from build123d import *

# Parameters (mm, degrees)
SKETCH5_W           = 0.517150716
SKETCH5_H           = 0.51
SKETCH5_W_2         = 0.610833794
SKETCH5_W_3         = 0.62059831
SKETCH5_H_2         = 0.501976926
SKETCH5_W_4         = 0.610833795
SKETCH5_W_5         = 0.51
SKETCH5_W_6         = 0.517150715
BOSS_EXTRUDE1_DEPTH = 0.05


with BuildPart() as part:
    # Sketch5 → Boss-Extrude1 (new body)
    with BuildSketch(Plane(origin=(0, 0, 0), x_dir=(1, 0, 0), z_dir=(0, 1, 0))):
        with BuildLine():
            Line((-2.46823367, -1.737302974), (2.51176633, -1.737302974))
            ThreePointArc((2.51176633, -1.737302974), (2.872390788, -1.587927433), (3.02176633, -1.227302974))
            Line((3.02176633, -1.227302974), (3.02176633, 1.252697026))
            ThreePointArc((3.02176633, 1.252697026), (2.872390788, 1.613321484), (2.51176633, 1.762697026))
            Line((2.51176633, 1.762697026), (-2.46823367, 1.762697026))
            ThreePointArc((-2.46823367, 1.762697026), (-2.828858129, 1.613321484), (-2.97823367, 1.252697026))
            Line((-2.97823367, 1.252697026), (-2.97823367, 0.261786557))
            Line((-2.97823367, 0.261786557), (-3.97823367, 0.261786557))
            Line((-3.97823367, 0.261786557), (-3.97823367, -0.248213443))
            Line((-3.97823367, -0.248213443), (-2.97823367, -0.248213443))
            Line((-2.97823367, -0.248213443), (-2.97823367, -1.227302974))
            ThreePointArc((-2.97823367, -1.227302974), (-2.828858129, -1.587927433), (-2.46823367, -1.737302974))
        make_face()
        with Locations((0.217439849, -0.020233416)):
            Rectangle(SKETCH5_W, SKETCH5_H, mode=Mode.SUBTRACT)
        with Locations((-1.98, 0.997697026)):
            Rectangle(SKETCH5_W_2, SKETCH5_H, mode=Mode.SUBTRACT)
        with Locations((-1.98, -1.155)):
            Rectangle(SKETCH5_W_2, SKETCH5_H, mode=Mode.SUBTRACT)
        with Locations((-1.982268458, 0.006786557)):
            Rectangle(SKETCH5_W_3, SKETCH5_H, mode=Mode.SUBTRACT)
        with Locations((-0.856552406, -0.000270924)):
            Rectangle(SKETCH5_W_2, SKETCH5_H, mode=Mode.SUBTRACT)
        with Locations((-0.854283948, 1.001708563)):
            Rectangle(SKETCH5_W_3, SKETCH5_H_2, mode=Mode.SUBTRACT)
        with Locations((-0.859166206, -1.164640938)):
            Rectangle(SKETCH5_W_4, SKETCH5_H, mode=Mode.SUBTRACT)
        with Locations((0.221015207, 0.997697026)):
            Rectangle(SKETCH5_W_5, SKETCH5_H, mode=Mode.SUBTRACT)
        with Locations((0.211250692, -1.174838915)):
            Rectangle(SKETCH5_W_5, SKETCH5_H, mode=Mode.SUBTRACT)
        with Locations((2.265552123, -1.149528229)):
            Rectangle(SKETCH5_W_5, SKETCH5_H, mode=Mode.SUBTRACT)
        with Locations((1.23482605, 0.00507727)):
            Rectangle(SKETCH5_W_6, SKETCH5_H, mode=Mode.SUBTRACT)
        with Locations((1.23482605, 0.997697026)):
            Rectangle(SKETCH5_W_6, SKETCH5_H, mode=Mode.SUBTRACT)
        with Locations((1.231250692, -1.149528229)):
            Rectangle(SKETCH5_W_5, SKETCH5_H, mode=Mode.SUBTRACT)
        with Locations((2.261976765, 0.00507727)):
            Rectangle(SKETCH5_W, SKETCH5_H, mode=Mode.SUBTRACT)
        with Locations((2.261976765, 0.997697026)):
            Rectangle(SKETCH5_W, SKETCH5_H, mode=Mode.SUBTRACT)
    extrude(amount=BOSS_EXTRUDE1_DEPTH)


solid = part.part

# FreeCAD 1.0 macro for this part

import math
import FreeCAD as App
import Part
import Sketcher
Q = App.Units.Quantity

doc = App.newDocument("Part")
body = doc.addObject("PartDesign::Body", "Body")

# Sketch on XZ plane
sketch1 = doc.addObject("Sketcher::SketchObject", "Sketch")
body.addObject(sketch1)
sketch1.AttachmentSupport = (doc.XZ_Plane, [""])
sketch1.MapMode = "FlatFace"
sketch1.addGeometry([
    Part.LineSegment(App.Vector(-2.5, 1.7, 0), App.Vector(2.5, 1.7, 0)),  # 0
    Part.ArcOfCircle(Part.Circle(App.Vector(2.5, 1.2, 0), App.Vector(0, 0, 1), 0.5), math.radians(0), math.radians(90)),  # 1
    Part.LineSegment(App.Vector(3, 1.2, 0), App.Vector(3, -1.3, 0)),  # 2
    Part.ArcOfCircle(Part.Circle(App.Vector(2.5, -1.3, 0), App.Vector(0, 0, 1), 0.5), math.radians(-90), math.radians(0)),  # 3
    Part.LineSegment(App.Vector(2.5, -1.8, 0), App.Vector(-2.5, -1.8, 0)),  # 4
    Part.ArcOfCircle(Part.Circle(App.Vector(-2.5, -1.3, 0), App.Vector(0, 0, 1), 0.5), math.radians(180), math.radians(270)),  # 5
    Part.LineSegment(App.Vector(-3, -1.3, 0), App.Vector(-3, -0.3, 0)),  # 6
    Part.LineSegment(App.Vector(-3, -0.3, 0), App.Vector(-4, -0.3, 0)),  # 7
    Part.LineSegment(App.Vector(-4, -0.3, 0), App.Vector(-4, 0.2, 0)),  # 8
    Part.LineSegment(App.Vector(-4, 0.2, 0), App.Vector(-3, 0.2, 0)),  # 9
    Part.LineSegment(App.Vector(-3, 0.2, 0), App.Vector(-3, 1.2, 0)),  # 10
    Part.ArcOfCircle(Part.Circle(App.Vector(-2.5, 1.2, 0), App.Vector(0, 0, 1), 0.5), math.radians(90), math.radians(180)),  # 11
    Part.LineSegment(App.Vector(-1.7, 1.4, 0), App.Vector(-2.3, 1.4, 0)),  # 12
    Part.LineSegment(App.Vector(-2.3, 1.4, 0), App.Vector(-2.3, 0.9, 0)),  # 13
    Part.LineSegment(App.Vector(-2.3, 0.9, 0), App.Vector(-1.7, 0.9, 0)),  # 14
    Part.LineSegment(App.Vector(-1.7, 0.9, 0), App.Vector(-1.7, 1.4, 0)),  # 15
    Part.LineSegment(App.Vector(-0.6, 1.4, 0), App.Vector(-1.2, 1.4, 0)),  # 16
    Part.LineSegment(App.Vector(-1.2, 1.4, 0), App.Vector(-1.2, 0.9, 0)),  # 17
    Part.LineSegment(App.Vector(-1.2, 0.9, 0), App.Vector(-0.6, 0.9, 0)),  # 18
    Part.LineSegment(App.Vector(-0.6, 0.9, 0), App.Vector(-0.6, 1.4, 0)),  # 19
    Part.LineSegment(App.Vector(0.5, 1.4, 0), App.Vector(0, 1.4, 0)),  # 20
    Part.LineSegment(App.Vector(0, 1.4, 0), App.Vector(0, 0.9, 0)),  # 21
    Part.LineSegment(App.Vector(0, 0.9, 0), App.Vector(0.5, 0.9, 0)),  # 22
    Part.LineSegment(App.Vector(0.5, 0.9, 0), App.Vector(0.5, 1.4, 0)),  # 23
    Part.LineSegment(App.Vector(1.5, 1.4, 0), App.Vector(1, 1.4, 0)),  # 24
    Part.LineSegment(App.Vector(1, 1.4, 0), App.Vector(1, 0.9, 0)),  # 25
    Part.LineSegment(App.Vector(1, 0.9, 0), App.Vector(1.5, 0.9, 0)),  # 26
    Part.LineSegment(App.Vector(1.5, 0.9, 0), App.Vector(1.5, 1.4, 0)),  # 27
    Part.LineSegment(App.Vector(2.5, 1.4, 0), App.Vector(2, 1.4, 0)),  # 28
    Part.LineSegment(App.Vector(2, 1.4, 0), App.Vector(2, 0.9, 0)),  # 29
    Part.LineSegment(App.Vector(2, 0.9, 0), App.Vector(2.5, 0.9, 0)),  # 30
    Part.LineSegment(App.Vector(2.5, 0.9, 0), App.Vector(2.5, 1.4, 0)),  # 31
    Part.LineSegment(App.Vector(-1.7, 0.2, 0), App.Vector(-2.3, 0.2, 0)),  # 32
    Part.LineSegment(App.Vector(-2.3, 0.2, 0), App.Vector(-2.3, -0.3, 0)),  # 33
    Part.LineSegment(App.Vector(-2.3, -0.3, 0), App.Vector(-1.7, -0.3, 0)),  # 34
    Part.LineSegment(App.Vector(-1.7, -0.3, 0), App.Vector(-1.7, 0.2, 0)),  # 35
    Part.LineSegment(App.Vector(-0.6, 0.3, 0), App.Vector(-1.2, 0.3, 0)),  # 36
    Part.LineSegment(App.Vector(-1.2, 0.3, 0), App.Vector(-1.2, -0.3, 0)),  # 37
    Part.LineSegment(App.Vector(-1.2, -0.3, 0), App.Vector(-0.6, -0.3, 0)),  # 38
    Part.LineSegment(App.Vector(-0.6, -0.3, 0), App.Vector(-0.6, 0.3, 0)),  # 39
    Part.LineSegment(App.Vector(-1.7, -0.7, 0), App.Vector(-2.3, -0.7, 0)),  # 40
    Part.LineSegment(App.Vector(-2.3, -0.7, 0), App.Vector(-2.3, -1.3, 0)),  # 41
    Part.LineSegment(App.Vector(-2.3, -1.3, 0), App.Vector(-1.7, -1.3, 0)),  # 42
    Part.LineSegment(App.Vector(-1.7, -1.3, 0), App.Vector(-1.7, -0.7, 0)),  # 43
    Part.LineSegment(App.Vector(-0.5, -0.8, 0), App.Vector(-1.2, -0.8, 0)),  # 44
    Part.LineSegment(App.Vector(-1.2, -0.8, 0), App.Vector(-1.2, -1.3, 0)),  # 45
    Part.LineSegment(App.Vector(-1.2, -1.3, 0), App.Vector(-0.5, -1.3, 0)),  # 46
    Part.LineSegment(App.Vector(-0.5, -1.3, 0), App.Vector(-0.5, -0.8, 0)),  # 47
    Part.LineSegment(App.Vector(0.5, 0.3, 0), App.Vector(0, 0.3, 0)),  # 48
    Part.LineSegment(App.Vector(0, 0.3, 0), App.Vector(0, -0.2, 0)),  # 49
    Part.LineSegment(App.Vector(0, -0.2, 0), App.Vector(0.5, -0.2, 0)),  # 50
    Part.LineSegment(App.Vector(0.5, -0.2, 0), App.Vector(0.5, 0.3, 0)),  # 51
    Part.LineSegment(App.Vector(1.5, 0.2, 0), App.Vector(1, 0.2, 0)),  # 52
    Part.LineSegment(App.Vector(1, 0.2, 0), App.Vector(1, -0.3, 0)),  # 53
    Part.LineSegment(App.Vector(1, -0.3, 0), App.Vector(1.5, -0.3, 0)),  # 54
    Part.LineSegment(App.Vector(1.5, -0.3, 0), App.Vector(1.5, 0.2, 0)),  # 55
    Part.LineSegment(App.Vector(2.5, 0.2, 0), App.Vector(2, 0.2, 0)),  # 56
    Part.LineSegment(App.Vector(2, 0.2, 0), App.Vector(2, -0.3, 0)),  # 57
    Part.LineSegment(App.Vector(2, -0.3, 0), App.Vector(2.5, -0.3, 0)),  # 58
    Part.LineSegment(App.Vector(2.5, -0.3, 0), App.Vector(2.5, 0.2, 0)),  # 59
    Part.LineSegment(App.Vector(0.5, -0.7, 0), App.Vector(0, -0.7, 0)),  # 60
    Part.LineSegment(App.Vector(0, -0.7, 0), App.Vector(0, -1.3, 0)),  # 61
    Part.LineSegment(App.Vector(0, -1.3, 0), App.Vector(0.5, -1.3, 0)),  # 62
    Part.LineSegment(App.Vector(0.5, -1.3, 0), App.Vector(0.5, -0.7, 0)),  # 63
    Part.LineSegment(App.Vector(1.5, -0.7, 0), App.Vector(1, -0.7, 0)),  # 64
    Part.LineSegment(App.Vector(1, -0.7, 0), App.Vector(1, -1.3, 0)),  # 65
    Part.LineSegment(App.Vector(1, -1.3, 0), App.Vector(1.5, -1.3, 0)),  # 66
    Part.LineSegment(App.Vector(1.5, -1.3, 0), App.Vector(1.5, -0.7, 0)),  # 67
    Part.LineSegment(App.Vector(2.5, -0.7, 0), App.Vector(2, -0.7, 0)),  # 68
    Part.LineSegment(App.Vector(2, -0.7, 0), App.Vector(2, -1.3, 0)),  # 69
    Part.LineSegment(App.Vector(2, -1.3, 0), App.Vector(2.5, -1.3, 0)),  # 70
    Part.LineSegment(App.Vector(2.5, -1.3, 0), App.Vector(2.5, -0.7, 0)),  # 71
], False)
sketch1.addConstraint([
    Sketcher.Constraint("Tangent", 0, 2, 1, 2),
    Sketcher.Constraint("Tangent", 1, 1, 2, 1),
    Sketcher.Constraint("Tangent", 2, 2, 3, 2),
    Sketcher.Constraint("Tangent", 3, 1, 4, 1),
    Sketcher.Constraint("Tangent", 4, 2, 5, 2),
    Sketcher.Constraint("Tangent", 5, 1, 6, 1),
    Sketcher.Constraint("Coincident", 6, 2, 7, 1),
    Sketcher.Constraint("Coincident", 7, 2, 8, 1),
    Sketcher.Constraint("Coincident", 8, 2, 9, 1),
    Sketcher.Constraint("Coincident", 9, 2, 10, 1),
    Sketcher.Constraint("Tangent", 10, 2, 11, 2),
    Sketcher.Constraint("Tangent", 11, 1, 0, 1),
    Sketcher.Constraint("Coincident", 12, 2, 13, 1),
    Sketcher.Constraint("Coincident", 13, 2, 14, 1),
    Sketcher.Constraint("Coincident", 14, 2, 15, 1),
    Sketcher.Constraint("Coincident", 15, 2, 12, 1),
    Sketcher.Constraint("Coincident", 16, 2, 17, 1),
    Sketcher.Constraint("Coincident", 17, 2, 18, 1),
    Sketcher.Constraint("Coincident", 18, 2, 19, 1),
    Sketcher.Constraint("Coincident", 19, 2, 16, 1),
    Sketcher.Constraint("Coincident", 20, 2, 21, 1),
    Sketcher.Constraint("Coincident", 21, 2, 22, 1),
    Sketcher.Constraint("Coincident", 22, 2, 23, 1),
    Sketcher.Constraint("Coincident", 23, 2, 20, 1),
    Sketcher.Constraint("Coincident", 24, 2, 25, 1),
    Sketcher.Constraint("Coincident", 25, 2, 26, 1),
    Sketcher.Constraint("Coincident", 26, 2, 27, 1),
    Sketcher.Constraint("Coincident", 27, 2, 24, 1),
    Sketcher.Constraint("Coincident", 28, 2, 29, 1),
    Sketcher.Constraint("Coincident", 29, 2, 30, 1),
    Sketcher.Constraint("Coincident", 30, 2, 31, 1),
    Sketcher.Constraint("Coincident", 31, 2, 28, 1),
    Sketcher.Constraint("Coincident", 32, 2, 33, 1),
    Sketcher.Constraint("Coincident", 33, 2, 34, 1),
    Sketcher.Constraint("Coincident", 34, 2, 35, 1),
    Sketcher.Constraint("Coincident", 35, 2, 32, 1),
    Sketcher.Constraint("Coincident", 36, 2, 37, 1),
    Sketcher.Constraint("Coincident", 37, 2, 38, 1),
    Sketcher.Constraint("Coincident", 38, 2, 39, 1),
    Sketcher.Constraint("Coincident", 39, 2, 36, 1),
    Sketcher.Constraint("Coincident", 40, 2, 41, 1),
    Sketcher.Constraint("Coincident", 41, 2, 42, 1),
    Sketcher.Constraint("Coincident", 42, 2, 43, 1),
    Sketcher.Constraint("Coincident", 43, 2, 40, 1),
    Sketcher.Constraint("Coincident", 44, 2, 45, 1),
    Sketcher.Constraint("Coincident", 45, 2, 46, 1),
    Sketcher.Constraint("Coincident", 46, 2, 47, 1),
    Sketcher.Constraint("Coincident", 47, 2, 44, 1),
    Sketcher.Constraint("Coincident", 48, 2, 49, 1),
    Sketcher.Constraint("Coincident", 49, 2, 50, 1),
    Sketcher.Constraint("Coincident", 50, 2, 51, 1),
    Sketcher.Constraint("Coincident", 51, 2, 48, 1),
    Sketcher.Constraint("Coincident", 52, 2, 53, 1),
    Sketcher.Constraint("Coincident", 53, 2, 54, 1),
    Sketcher.Constraint("Coincident", 54, 2, 55, 1),
    Sketcher.Constraint("Coincident", 55, 2, 52, 1),
    Sketcher.Constraint("Coincident", 56, 2, 57, 1),
    Sketcher.Constraint("Coincident", 57, 2, 58, 1),
    Sketcher.Constraint("Coincident", 58, 2, 59, 1),
    Sketcher.Constraint("Coincident", 59, 2, 56, 1),
    Sketcher.Constraint("Coincident", 60, 2, 61, 1),
    Sketcher.Constraint("Coincident", 61, 2, 62, 1),
    Sketcher.Constraint("Coincident", 62, 2, 63, 1),
    Sketcher.Constraint("Coincident", 63, 2, 60, 1),
    Sketcher.Constraint("Coincident", 64, 2, 65, 1),
    Sketcher.Constraint("Coincident", 65, 2, 66, 1),
    Sketcher.Constraint("Coincident", 66, 2, 67, 1),
    Sketcher.Constraint("Coincident", 67, 2, 64, 1),
    Sketcher.Constraint("Coincident", 68, 2, 69, 1),
    Sketcher.Constraint("Coincident", 69, 2, 70, 1),
    Sketcher.Constraint("Coincident", 70, 2, 71, 1),
    Sketcher.Constraint("Coincident", 71, 2, 68, 1),
    Sketcher.Constraint("Horizontal", 0),
    Sketcher.Constraint("Vertical", 2),
    Sketcher.Constraint("Horizontal", 4),
    Sketcher.Constraint("Vertical", 6),
    Sketcher.Constraint("Horizontal", 7),
    Sketcher.Constraint("Vertical", 8),
    Sketcher.Constraint("Horizontal", 9),
    Sketcher.Constraint("Vertical", 10),
    Sketcher.Constraint("Horizontal", 12),
    Sketcher.Constraint("Vertical", 13),
    Sketcher.Constraint("Horizontal", 14),
    Sketcher.Constraint("Vertical", 15),
    Sketcher.Constraint("Horizontal", 16),
    Sketcher.Constraint("Vertical", 17),
    Sketcher.Constraint("Horizontal", 18),
    Sketcher.Constraint("Vertical", 19),
    Sketcher.Constraint("Horizontal", 20),
    Sketcher.Constraint("Vertical", 21),
    Sketcher.Constraint("Horizontal", 22),
    Sketcher.Constraint("Vertical", 23),
    Sketcher.Constraint("Horizontal", 24),
    Sketcher.Constraint("Vertical", 25),
    Sketcher.Constraint("Horizontal", 26),
    Sketcher.Constraint("Vertical", 27),
    Sketcher.Constraint("Horizontal", 28),
    Sketcher.Constraint("Vertical", 29),
    Sketcher.Constraint("Horizontal", 30),
    Sketcher.Constraint("Vertical", 31),
    Sketcher.Constraint("Horizontal", 32),
    Sketcher.Constraint("Vertical", 33),
    Sketcher.Constraint("Horizontal", 34),
    Sketcher.Constraint("Vertical", 35),
    Sketcher.Constraint("Horizontal", 36),
    Sketcher.Constraint("Vertical", 37),
    Sketcher.Constraint("Horizontal", 38),
    Sketcher.Constraint("Vertical", 39),
    Sketcher.Constraint("Horizontal", 40),
    Sketcher.Constraint("Vertical", 41),
    Sketcher.Constraint("Horizontal", 42),
    Sketcher.Constraint("Vertical", 43),
    Sketcher.Constraint("Horizontal", 44),
    Sketcher.Constraint("Vertical", 45),
    Sketcher.Constraint("Horizontal", 46),
    Sketcher.Constraint("Vertical", 47),
    Sketcher.Constraint("Horizontal", 48),
    Sketcher.Constraint("Vertical", 49),
    Sketcher.Constraint("Horizontal", 50),
    Sketcher.Constraint("Vertical", 51),
    Sketcher.Constraint("Horizontal", 52),
    Sketcher.Constraint("Vertical", 53),
    Sketcher.Constraint("Horizontal", 54),
    Sketcher.Constraint("Vertical", 55),
    Sketcher.Constraint("Horizontal", 56),
    Sketcher.Constraint("Vertical", 57),
    Sketcher.Constraint("Horizontal", 58),
    Sketcher.Constraint("Vertical", 59),
    Sketcher.Constraint("Horizontal", 60),
    Sketcher.Constraint("Vertical", 61),
    Sketcher.Constraint("Horizontal", 62),
    Sketcher.Constraint("Vertical", 63),
    Sketcher.Constraint("Horizontal", 64),
    Sketcher.Constraint("Vertical", 65),
    Sketcher.Constraint("Horizontal", 66),
    Sketcher.Constraint("Vertical", 67),
    Sketcher.Constraint("Horizontal", 68),
    Sketcher.Constraint("Vertical", 69),
    Sketcher.Constraint("Horizontal", 70),
    Sketcher.Constraint("Vertical", 71),
    Sketcher.Constraint("Equal", 1, 3),
    Sketcher.Constraint("Equal", 3, 5),
    Sketcher.Constraint("Equal", 5, 11),
    Sketcher.Constraint("Horizontal", 27, 2, 28, 2),
    Sketcher.Constraint("Horizontal", 26, 2, 29, 2),
    Sketcher.Constraint("Horizontal", 9, 2, 32, 2),
    Sketcher.Constraint("Horizontal", 7, 2, 33, 2),
    Sketcher.Constraint("Horizontal", 5, 1, 41, 2),
    Sketcher.Constraint("Horizontal", 42, 2, 45, 2),
    Sketcher.Constraint("Horizontal", 55, 2, 56, 2),
    Sketcher.Constraint("Horizontal", 54, 2, 57, 2),
    Sketcher.Constraint("Horizontal", 43, 2, 60, 2),
    Sketcher.Constraint("Horizontal", 46, 2, 61, 2),
    Sketcher.Constraint("Horizontal", 63, 2, 64, 2),
    Sketcher.Constraint("Horizontal", 62, 2, 65, 2),
    Sketcher.Constraint("Horizontal", 67, 2, 68, 2),
    Sketcher.Constraint("Horizontal", 66, 2, 69, 2),
    Sketcher.Constraint("Vertical", 5, 3, 11, 3),
    Sketcher.Constraint("Vertical", 13, 2, 40, 2),
    Sketcher.Constraint("Vertical", 15, 2, 42, 2),
    Sketcher.Constraint("Vertical", 17, 2, 44, 2),
    Sketcher.Constraint("Vertical", 25, 2, 52, 2),
    Sketcher.Constraint("Vertical", 31, 2, 58, 2),
    Sketcher.Constraint("Vertical", 51, 2, 62, 2),
    Sketcher.Constraint("Vertical", 53, 2, 64, 2),
    Sketcher.Constraint("Vertical", 55, 2, 66, 2),
    Sketcher.Constraint("Vertical", 57, 2, 68, 2),
    Sketcher.Constraint("Vertical", 59, 2, 70, 2),
    Sketcher.Constraint("Equal", 14, 16),
    Sketcher.Constraint("Equal", 22, 24),
    Sketcher.Constraint("Equal", 26, 28),
    Sketcher.Constraint("Equal", 18, 36),
    Sketcher.Constraint("Equal", 34, 44),
    Sketcher.Constraint("Equal", 50, 52),
    Sketcher.Constraint("Equal", 54, 56),
    Sketcher.Constraint("Equal", 30, 60),
    Sketcher.Constraint("Equal", 62, 8),
    Sketcher.Constraint("Equal", 8, 13),
    Sketcher.Constraint("Equal", 15, 17),
    Sketcher.Constraint("Equal", 19, 21),
    Sketcher.Constraint("Equal", 23, 25),
    Sketcher.Constraint("Equal", 35, 37),
    Sketcher.Constraint("Equal", 39, 41),
    Sketcher.Constraint("Equal", 43, 49),
    Sketcher.Constraint("Equal", 51, 53),
    Sketcher.Constraint("DistanceX", 7, 2, 7, 1, Q("1 mm")),
    Sketcher.Constraint("Radius", 1, Q("0.51 mm")),
    Sketcher.Constraint("DistanceX", 0, 1, 0, 2, Q("4.98 mm")),
    Sketcher.Constraint("DistanceX", 20, 2, 20, 1, Q("0.51 mm")),
    Sketcher.Constraint("DistanceY", 2, 2, 2, 1, Q("2.48 mm")),
    Sketcher.Constraint("DistanceY", -1, 1, 13, 2, Q("0.9 mm")),
    Sketcher.Constraint("DistanceX", 32, 2, 32, 1, Q("0.620598 mm")),
    Sketcher.Constraint("DistanceX", 48, 2, 48, 1, Q("0.517151 mm")),
    Sketcher.Constraint("DistanceY", 6, 1, 6, 2, Q("0.99091 mm")),
    Sketcher.Constraint("DistanceX", -1, 1, 54, 2, Q("1.493401 mm")),
    Sketcher.Constraint("DistanceX", -1, 1, 56, 2, Q("2.003401 mm")),
    Sketcher.Constraint("DistanceX", 12, 2, 12, 1, Q("0.610834 mm")),
    Sketcher.Constraint("DistanceY", 45, 2, 45, 1, Q("0.501977 mm")),
    Sketcher.Constraint("DistanceY", -1, 1, 16, 2, Q("1.419641 mm")),
    Sketcher.Constraint("DistanceX", 18, 2, -1, 1, Q("0.553749 mm")),
    Sketcher.Constraint("DistanceX", 20, 2, -1, 1, Q("0.043749 mm")),
    Sketcher.Constraint("DistanceY", -1, 1, 20, 2, Q("1.429839 mm")),
    Sketcher.Constraint("DistanceY", -1, 1, 24, 2, Q("1.404528 mm")),
    Sketcher.Constraint("DistanceX", 34, 2, -1, 1, Q("1.671969 mm")),
    Sketcher.Constraint("DistanceX", 36, 2, -1, 1, Q("1.161969 mm")),
    Sketcher.Constraint("DistanceY", -1, 1, 36, 2, Q("0.255271 mm")),
    Sketcher.Constraint("DistanceY", 44, 2, -1, 1, Q("0.75072 mm")),
    Sketcher.Constraint("DistanceX", -1, 1, 1, 3, Q("2.511766 mm")),
    Sketcher.Constraint("DistanceX", 12, 2, -1, 1, Q("2.285417 mm")),
    Sketcher.Constraint("DistanceX", 48, 2, -1, 1, Q("0.041136 mm")),
    Sketcher.Constraint("DistanceY", -1, 1, 48, 2, Q("0.275233 mm")),
    Sketcher.Constraint("DistanceY", -1, 1, 52, 2, Q("0.249923 mm")),
])
pad1 = doc.addObject("PartDesign::Pad", "Pad")
body.addObject(pad1)
pad1.Profile = sketch1
pad1.Length = 0.05
pad1.Reversed = True

doc.recompute()
